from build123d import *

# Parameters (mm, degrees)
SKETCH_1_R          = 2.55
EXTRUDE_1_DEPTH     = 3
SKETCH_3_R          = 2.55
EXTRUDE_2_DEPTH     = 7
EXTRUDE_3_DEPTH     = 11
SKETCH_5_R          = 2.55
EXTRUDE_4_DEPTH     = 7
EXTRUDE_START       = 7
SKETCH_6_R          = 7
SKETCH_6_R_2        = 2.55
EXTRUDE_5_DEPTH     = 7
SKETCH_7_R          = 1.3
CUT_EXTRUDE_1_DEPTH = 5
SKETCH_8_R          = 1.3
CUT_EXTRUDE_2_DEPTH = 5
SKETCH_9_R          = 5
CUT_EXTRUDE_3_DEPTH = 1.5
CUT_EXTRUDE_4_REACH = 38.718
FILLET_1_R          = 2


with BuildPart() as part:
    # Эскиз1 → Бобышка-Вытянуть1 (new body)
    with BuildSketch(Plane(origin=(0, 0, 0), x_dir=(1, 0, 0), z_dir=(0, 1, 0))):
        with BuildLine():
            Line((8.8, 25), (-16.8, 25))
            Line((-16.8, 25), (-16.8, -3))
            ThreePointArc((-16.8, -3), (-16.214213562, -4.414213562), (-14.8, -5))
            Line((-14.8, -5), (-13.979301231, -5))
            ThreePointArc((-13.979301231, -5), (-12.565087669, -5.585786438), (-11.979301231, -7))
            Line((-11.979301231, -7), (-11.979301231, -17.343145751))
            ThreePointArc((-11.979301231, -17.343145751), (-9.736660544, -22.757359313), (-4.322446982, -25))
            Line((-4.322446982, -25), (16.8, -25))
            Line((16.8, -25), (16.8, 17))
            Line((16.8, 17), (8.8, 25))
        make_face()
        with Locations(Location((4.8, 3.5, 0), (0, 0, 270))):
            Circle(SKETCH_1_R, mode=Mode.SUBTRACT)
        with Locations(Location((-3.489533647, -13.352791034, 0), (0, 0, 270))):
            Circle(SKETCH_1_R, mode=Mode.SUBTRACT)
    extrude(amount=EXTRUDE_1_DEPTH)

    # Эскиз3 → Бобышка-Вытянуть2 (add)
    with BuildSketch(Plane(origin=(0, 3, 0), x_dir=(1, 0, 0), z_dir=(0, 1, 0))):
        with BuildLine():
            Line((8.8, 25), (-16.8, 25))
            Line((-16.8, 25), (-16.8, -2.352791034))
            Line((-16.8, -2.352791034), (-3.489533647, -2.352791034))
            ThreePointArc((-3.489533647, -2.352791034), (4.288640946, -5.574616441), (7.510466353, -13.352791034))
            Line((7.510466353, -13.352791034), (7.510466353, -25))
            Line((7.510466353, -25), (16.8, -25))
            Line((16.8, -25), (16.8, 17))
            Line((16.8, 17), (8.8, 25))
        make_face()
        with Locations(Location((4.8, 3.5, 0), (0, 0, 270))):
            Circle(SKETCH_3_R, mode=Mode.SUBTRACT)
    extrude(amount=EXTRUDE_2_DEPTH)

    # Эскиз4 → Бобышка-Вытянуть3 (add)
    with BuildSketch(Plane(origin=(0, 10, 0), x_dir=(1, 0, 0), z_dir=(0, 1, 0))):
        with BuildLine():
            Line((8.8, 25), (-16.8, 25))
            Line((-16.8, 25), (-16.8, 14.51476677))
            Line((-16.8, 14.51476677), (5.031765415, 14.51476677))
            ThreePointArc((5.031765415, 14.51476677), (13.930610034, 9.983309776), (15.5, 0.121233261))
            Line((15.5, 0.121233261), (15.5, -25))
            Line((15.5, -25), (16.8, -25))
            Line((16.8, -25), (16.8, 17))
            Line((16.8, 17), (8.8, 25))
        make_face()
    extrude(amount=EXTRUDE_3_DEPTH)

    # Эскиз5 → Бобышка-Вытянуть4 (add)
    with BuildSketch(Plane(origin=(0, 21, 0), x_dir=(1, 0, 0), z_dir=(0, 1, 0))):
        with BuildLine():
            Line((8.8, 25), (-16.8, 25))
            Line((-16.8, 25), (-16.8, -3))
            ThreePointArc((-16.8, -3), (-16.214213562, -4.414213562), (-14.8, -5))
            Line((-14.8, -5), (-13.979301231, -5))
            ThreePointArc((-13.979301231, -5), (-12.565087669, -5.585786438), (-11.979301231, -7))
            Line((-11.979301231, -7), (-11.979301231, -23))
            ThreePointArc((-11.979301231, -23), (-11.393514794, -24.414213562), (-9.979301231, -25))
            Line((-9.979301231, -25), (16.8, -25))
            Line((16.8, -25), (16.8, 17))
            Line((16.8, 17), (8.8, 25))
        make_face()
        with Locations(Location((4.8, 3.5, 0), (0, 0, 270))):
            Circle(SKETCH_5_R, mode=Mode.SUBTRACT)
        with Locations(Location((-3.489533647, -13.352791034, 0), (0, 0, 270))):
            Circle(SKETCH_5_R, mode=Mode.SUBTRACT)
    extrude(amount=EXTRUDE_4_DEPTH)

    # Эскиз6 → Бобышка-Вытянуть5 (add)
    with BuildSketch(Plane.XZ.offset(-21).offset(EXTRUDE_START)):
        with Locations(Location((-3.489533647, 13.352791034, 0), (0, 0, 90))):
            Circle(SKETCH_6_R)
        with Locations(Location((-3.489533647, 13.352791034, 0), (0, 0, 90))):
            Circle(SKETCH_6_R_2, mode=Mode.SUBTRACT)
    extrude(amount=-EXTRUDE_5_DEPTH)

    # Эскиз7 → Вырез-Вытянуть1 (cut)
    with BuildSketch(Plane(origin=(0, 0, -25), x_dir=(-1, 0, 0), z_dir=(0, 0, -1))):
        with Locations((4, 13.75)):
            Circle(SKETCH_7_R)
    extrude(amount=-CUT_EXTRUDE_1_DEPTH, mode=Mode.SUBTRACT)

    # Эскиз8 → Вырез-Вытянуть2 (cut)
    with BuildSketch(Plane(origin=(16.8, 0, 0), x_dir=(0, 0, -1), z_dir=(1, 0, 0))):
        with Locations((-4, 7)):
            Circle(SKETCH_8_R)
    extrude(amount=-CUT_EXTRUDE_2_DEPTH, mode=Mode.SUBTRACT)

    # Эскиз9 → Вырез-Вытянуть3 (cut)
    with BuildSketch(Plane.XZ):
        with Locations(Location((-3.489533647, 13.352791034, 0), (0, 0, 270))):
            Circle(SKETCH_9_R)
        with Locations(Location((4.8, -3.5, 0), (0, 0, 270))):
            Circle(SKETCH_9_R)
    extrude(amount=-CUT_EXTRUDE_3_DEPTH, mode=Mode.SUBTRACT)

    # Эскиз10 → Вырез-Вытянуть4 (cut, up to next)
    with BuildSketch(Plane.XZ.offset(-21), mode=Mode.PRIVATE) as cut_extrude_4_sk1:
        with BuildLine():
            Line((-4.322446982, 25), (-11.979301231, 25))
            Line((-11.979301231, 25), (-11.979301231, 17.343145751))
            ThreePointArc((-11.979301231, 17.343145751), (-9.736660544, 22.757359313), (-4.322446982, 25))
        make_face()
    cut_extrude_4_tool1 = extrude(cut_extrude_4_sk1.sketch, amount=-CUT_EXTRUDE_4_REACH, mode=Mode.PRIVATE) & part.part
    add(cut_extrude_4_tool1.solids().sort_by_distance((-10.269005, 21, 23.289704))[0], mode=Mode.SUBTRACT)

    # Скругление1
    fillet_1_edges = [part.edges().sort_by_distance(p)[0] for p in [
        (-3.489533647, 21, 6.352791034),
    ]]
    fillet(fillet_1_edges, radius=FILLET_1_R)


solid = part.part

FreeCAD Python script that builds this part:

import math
import FreeCAD as App
import Part
import Sketcher

V = App.Vector
Q = App.Units.Quantity


def edges_at(feature, points):
    """Names of the edges that pass closest to the given points."""
    edges = feature.Shape.Edges
    near = lambda p: min(range(len(edges)), key=lambda i: edges[i].distToShape(Part.Vertex(*p))[0])
    return sorted({f"Edge{near(p) + 1}" for p in points})

doc = App.newDocument("Part")
body = doc.addObject("PartDesign::Body", "Body")

# Sketch on XZ plane
sketch1 = doc.addObject("Sketcher::SketchObject", "Sketch")
body.addObject(sketch1)
sketch1.AttachmentSupport = (doc.XZ_Plane, [""])
sketch1.MapMode = "FlatFace"
sketch1.addGeometry(Part.LineSegment(V(8.8, -25, 0), V(-16.8, -25, 0)), False)
sketch1.addGeometry(Part.LineSegment(V(-16.8, -25, 0), V(-16.8, 3, 0)), False)
sketch1.addGeometry(Part.ArcOfCircle(Part.Circle(V(-14.8, 3, 0), V(0, 0, 1), 2), math.radians(90), math.radians(180)), False)
sketch1.addGeometry(Part.LineSegment(V(-14.8, 5, 0), V(-14, 5, 0)), False)
sketch1.addGeometry(Part.ArcOfCircle(Part.Circle(V(-14, 7, 0), V(0, 0, 1), 2), math.radians(-90), math.radians(0)), False)
sketch1.addGeometry(Part.LineSegment(V(-12, 7, 0), V(-12, 17.3, 0)), False)
sketch1.addGeometry(Part.ArcOfCircle(Part.Circle(V(-4.3, 17.3, 0), V(0, 0, 1), 7.7), math.radians(90), math.radians(180)), False)
sketch1.addGeometry(Part.LineSegment(V(-4.3, 25, 0), V(16.8, 25, 0)), False)
sketch1.addGeometry(Part.LineSegment(V(16.8, 25, 0), V(16.8, -17, 0)), False)
sketch1.addGeometry(Part.LineSegment(V(16.8, -17, 0), V(8.8, -25, 0)), False)
sketch1.addGeometry(Part.Circle(V(-3.5, 13.4, 0), V(0, 0, 1), 2.5), False)
sketch1.addGeometry(Part.Circle(V(4.8, -3.5, 0), V(0, 0, 1), 2.5), False)
sketch1.addConstraint(Sketcher.Constraint("Coincident", 0, 2, 1, 1))
sketch1.addConstraint(Sketcher.Constraint("Tangent", 1, 2, 2, 2))
sketch1.addConstraint(Sketcher.Constraint("Tangent", 2, 1, 3, 1))
sketch1.addConstraint(Sketcher.Constraint("Tangent", 3, 2, 4, 1))
sketch1.addConstraint(Sketcher.Constraint("Tangent", 4, 2, 5, 1))
sketch1.addConstraint(Sketcher.Constraint("Tangent", 5, 2, 6, 2))
sketch1.addConstraint(Sketcher.Constraint("Tangent", 6, 1, 7, 1))
sketch1.addConstraint(Sketcher.Constraint("Coincident", 7, 2, 8, 1))
sketch1.addConstraint(Sketcher.Constraint("Coincident", 8, 2, 9, 1))
sketch1.addConstraint(Sketcher.Constraint("Coincident", 9, 2, 0, 1))
sketch1.addConstraint(Sketcher.Constraint("Horizontal", 0))
sketch1.addConstraint(Sketcher.Constraint("Vertical", 1))
sketch1.addConstraint(Sketcher.Constraint("Horizontal", 3))
sketch1.addConstraint(Sketcher.Constraint("Vertical", 5))
sketch1.addConstraint(Sketcher.Constraint("Horizontal", 7))
sketch1.addConstraint(Sketcher.Constraint("Vertical", 8))
sketch1.addConstraint(Sketcher.Constraint("Equal", 2, 4))
sketch1.addConstraint(Sketcher.Constraint("Equal", 10, 11))
sketch1.addConstraint(Sketcher.Constraint("Symmetric", 0, 2, 7, 2, -1, 1))
sketch1.addConstraint(Sketcher.Constraint("Radius", 2, Q("2 mm")))
sketch1.addConstraint(Sketcher.Constraint("Diameter", 10, Q("5.1 mm")))
sketch1.addConstraint(Sketcher.Constraint("DistanceY", 1, 1, 1, 2, Q("28 mm")))
sketch1.addConstraint(Sketcher.Constraint("DistanceY", 8, 2, 8, 1, Q("42 mm")))
sketch1.addConstraint(Sketcher.Constraint("Angle", 9, Q("-135 deg")))
sketch1.addConstraint(Sketcher.Constraint("DistanceX", 0, 2, 0, 1, Q("25.6 mm")))
sketch1.addConstraint(Sketcher.Constraint("DistanceY", -1, 1, 2, 3, Q("3 mm")))
sketch1.addConstraint(Sketcher.Constraint("DistanceX", 11, 3, 7, 2, Q("12 mm")))
sketch1.addConstraint(Sketcher.Constraint("DistanceY", 11, 3, -1, 1, Q("3.5 mm")))
sketch1.addConstraint(Sketcher.Constraint("DistanceX", 3, 1, 3, 2, Q("0.820699 mm")))
sketch1.addConstraint(Sketcher.Constraint("Radius", 6, Q("7.656854 mm")))
sketch1.addConstraint(Sketcher.Constraint("DistanceY", -1, 1, 10, 3, Q("13.352791 mm")))
sketch1.addConstraint(Sketcher.Constraint("DistanceX", 10, 3, -1, 1, Q("3.489534 mm")))
pad1 = doc.addObject("PartDesign::Pad", "Pad")
body.addObject(pad1)
pad1.Profile = sketch1
pad1.Length = 3
pad1.Reversed = True

# Sketch on XZ plane
sketch2 = doc.addObject("Sketcher::SketchObject", "Sketch001")
body.addObject(sketch2)
sketch2.AttachmentSupport = (doc.XZ_Plane, [""])
sketch2.MapMode = "FlatFace"
sketch2.AttachmentOffset = App.Placement(V(0, 0, -3), App.Rotation())
sketch2.addGeometry(Part.LineSegment(V(8.8, -25, 0), V(-16.8, -25, 0)), False)
sketch2.addGeometry(Part.LineSegment(V(-16.8, -25, 0), V(-16.8, 2.4, 0)), False)
sketch2.addGeometry(Part.LineSegment(V(-16.8, 2.4, 0), V(-3.5, 2.4, 0)), False)
sketch2.addGeometry(Part.ArcOfCircle(Part.Circle(V(-3.5, 13.4, 0), V(0, 0, 1), 11), math.radians(-90), math.radians(0)), False)
sketch2.addGeometry(Part.LineSegment(V(7.5, 13.4, 0), V(7.5, 25, 0)), False)
sketch2.addGeometry(Part.LineSegment(V(7.5, 25, 0), V(16.8, 25, 0)), False)
sketch2.addGeometry(Part.LineSegment(V(16.8, 25, 0), V(16.8, -17, 0)), False)
sketch2.addGeometry(Part.LineSegment(V(16.8, -17, 0), V(8.8, -25, 0)), False)
sketch2.addGeometry(Part.Circle(V(4.8, -3.5, 0), V(0, 0, 1), 2.5), False)
sketch2.addConstraint(Sketcher.Constraint("Coincident", 0, 2, 1, 1))
sketch2.addConstraint(Sketcher.Constraint("Coincident", 1, 2, 2, 1))
sketch2.addConstraint(Sketcher.Constraint("Tangent", 2, 2, 3, 1))
sketch2.addConstraint(Sketcher.Constraint("Tangent", 3, 2, 4, 1))
sketch2.addConstraint(Sketcher.Constraint("Coincident", 4, 2, 5, 1))
sketch2.addConstraint(Sketcher.Constraint("Coincident", 5, 2, 6, 1))
sketch2.addConstraint(Sketcher.Constraint("Coincident", 6, 2, 7, 1))
sketch2.addConstraint(Sketcher.Constraint("Coincident", 7, 2, 0, 1))
sketch2.addConstraint(Sketcher.Constraint("Horizontal", 0))
sketch2.addConstraint(Sketcher.Constraint("Vertical", 1))
sketch2.addConstraint(Sketcher.Constraint("Horizontal", 2))
sketch2.addConstraint(Sketcher.Constraint("Vertical", 4))
sketch2.addConstraint(Sketcher.Constraint("Horizontal", 5))
sketch2.addConstraint(Sketcher.Constraint("Vertical", 6))
sketch2.addConstraint(Sketcher.Constraint("Symmetric", 0, 2, 5, 2, -1, 1))
sketch2.addConstraint(Sketcher.Constraint("Radius", 3, Q("11 mm")))
sketch2.addConstraint(Sketcher.Constraint("Diameter", 8, Q("5.1 mm")))
sketch2.addConstraint(Sketcher.Constraint("DistanceY", 6, 2, 6, 1, Q("42 mm")))
sketch2.addConstraint(Sketcher.Constraint("Angle", 7, Q("-135 deg")))
sketch2.addConstraint(Sketcher.Constraint("DistanceX", 0, 2, 0, 1, Q("25.6 mm")))
sketch2.addConstraint(Sketcher.Constraint("DistanceY", 0, 2, -1, 1, Q("25 mm")))
sketch2.addConstraint(Sketcher.Constraint("DistanceX", 8, 3, 5, 2, Q("12 mm")))
sketch2.addConstraint(Sketcher.Constraint("DistanceY", 8, 3, -1, 1, Q("3.5 mm")))
sketch2.addConstraint(Sketcher.Constraint("DistanceY", 1, 1, 1, 2, Q("27.352791 mm")))
sketch2.addConstraint(Sketcher.Constraint("DistanceX", 2, 1, 2, 2, Q("13.310466 mm")))
pad2 = doc.addObject("PartDesign::Pad", "Pad001")
body.addObject(pad2)
pad2.Profile = sketch2
pad2.Length = 7
pad2.Reversed = True

# Sketch on XZ plane
sketch3 = doc.addObject("Sketcher::SketchObject", "Sketch002")
body.addObject(sketch3)
sketch3.AttachmentSupport = (doc.XZ_Plane, [""])
sketch3.MapMode = "FlatFace"
sketch3.AttachmentOffset = App.Placement(V(0, 0, -10), App.Rotation())
sketch3.addGeometry(Part.LineSegment(V(8.8, -25, 0), V(-16.8, -25, 0)), False)
sketch3.addGeometry(Part.LineSegment(V(-16.8, -25, 0), V(-16.8, -14.5, 0)), False)
sketch3.addGeometry(Part.LineSegment(V(-16.8, -14.5, 0), V(5, -14.5, 0)), False)
sketch3.addGeometry(Part.ArcOfCircle(Part.Circle(V(5, -3.5, 0), V(0, 0, 1), 11), math.radians(-90), math.radians(18)), False)
sketch3.addGeometry(Part.LineSegment(V(15.5, -0.1, 0), V(15.5, 25, 0)), False)
sketch3.addGeometry(Part.LineSegment(V(15.5, 25, 0), V(16.8, 25, 0)), False)
sketch3.addGeometry(Part.LineSegment(V(16.8, 25, 0), V(16.8, -17, 0)), False)
sketch3.addGeometry(Part.LineSegment(V(16.8, -17, 0), V(8.8, -25, 0)), False)
sketch3.addConstraint(Sketcher.Constraint("Coincident", 0, 2, 1, 1))
sketch3.addConstraint(Sketcher.Constraint("Coincident", 1, 2, 2, 1))
sketch3.addConstraint(Sketcher.Constraint("Tangent", 2, 2, 3, 1))
sketch3.addConstraint(Sketcher.Constraint("Coincident", 3, 2, 4, 1))
sketch3.addConstraint(Sketcher.Constraint("Coincident", 4, 2, 5, 1))
sketch3.addConstraint(Sketcher.Constraint("Coincident", 5, 2, 6, 1))
sketch3.addConstraint(Sketcher.Constraint("Coincident", 6, 2, 7, 1))
sketch3.addConstraint(Sketcher.Constraint("Coincident", 7, 2, 0, 1))
sketch3.addConstraint(Sketcher.Constraint("Horizontal", 0))
sketch3.addConstraint(Sketcher.Constraint("Vertical", 1))
sketch3.addConstraint(Sketcher.Constraint("Horizontal", 2))
sketch3.addConstraint(Sketcher.Constraint("Vertical", 4))
sketch3.addConstraint(Sketcher.Constraint("Horizontal", 5))
sketch3.addConstraint(Sketcher.Constraint("Vertical", 6))
sketch3.addConstraint(Sketcher.Constraint("Symmetric", 0, 2, 5, 2, -1, 1))
sketch3.addConstraint(Sketcher.Constraint("DistanceY", 6, 2, 6, 1, Q("42 mm")))
sketch3.addConstraint(Sketcher.Constraint("Angle", 7, Q("-135 deg")))
sketch3.addConstraint(Sketcher.Constraint("DistanceX", 0, 2, 0, 1, Q("25.6 mm")))
sketch3.addConstraint(Sketcher.Constraint("DistanceX", 5, 1, 5, 2, Q("1.3 mm")))
sketch3.addConstraint(Sketcher.Constraint("DistanceY", 0, 2, -1, 1, Q("25 mm")))
sketch3.addConstraint(Sketcher.Constraint("Radius", 3, Q("11.003474 mm")))
sketch3.addConstraint(Sketcher.Constraint("DistanceX", 2, 1, 2, 2, Q("21.831765 mm")))
sketch3.addConstraint(Sketcher.Constraint("DistanceY", 1, 1, 1, 2, Q("10.485233 mm")))
pad3 = doc.addObject("PartDesign::Pad", "Pad002")
body.addObject(pad3)
pad3.Profile = sketch3
pad3.Length = 11
pad3.Reversed = True

# Sketch on XZ plane
sketch4 = doc.addObject("Sketcher::SketchObject", "Sketch003")
body.addObject(sketch4)
sketch4.AttachmentSupport = (doc.XZ_Plane, [""])
sketch4.MapMode = "FlatFace"
sketch4.AttachmentOffset = App.Placement(V(0, 0, -21), App.Rotation())
sketch4.addGeometry(Part.LineSegment(V(8.8, -25, 0), V(-16.8, -25, 0)), False)
sketch4.addGeometry(Part.LineSegment(V(-16.8, -25, 0), V(-16.8, 3, 0)), False)
sketch4.addGeometry(Part.ArcOfCircle(Part.Circle(V(-14.8, 3, 0), V(0, 0, 1), 2), math.radians(90), math.radians(180)), False)
sketch4.addGeometry(Part.LineSegment(V(-14.8, 5, 0), V(-14, 5, 0)), False)
sketch4.addGeometry(Part.ArcOfCircle(Part.Circle(V(-14, 7, 0), V(0, 0, 1), 2), math.radians(-90), math.radians(0)), False)
sketch4.addGeometry(Part.LineSegment(V(-12, 7, 0), V(-12, 23, 0)), False)
sketch4.addGeometry(Part.ArcOfCircle(Part.Circle(V(-10, 23, 0), V(0, 0, 1), 2), math.radians(90), math.radians(180)), False)
sketch4.addGeometry(Part.LineSegment(V(-10, 25, 0), V(16.8, 25, 0)), False)
sketch4.addGeometry(Part.LineSegment(V(16.8, 25, 0), V(16.8, -17, 0)), False)
sketch4.addGeometry(Part.LineSegment(V(16.8, -17, 0), V(8.8, -25, 0)), False)
sketch4.addGeometry(Part.Circle(V(-3.5, 13.4, 0), V(0, 0, 1), 2.5), False)
sketch4.addGeometry(Part.Circle(V(4.8, -3.5, 0), V(0, 0, 1), 2.5), False)
sketch4.addConstraint(Sketcher.Constraint("Coincident", 0, 2, 1, 1))
sketch4.addConstraint(Sketcher.Constraint("Tangent", 1, 2, 2, 2))
sketch4.addConstraint(Sketcher.Constraint("Tangent", 2, 1, 3, 1))
sketch4.addConstraint(Sketcher.Constraint("Tangent", 3, 2, 4, 1))
sketch4.addConstraint(Sketcher.Constraint("Tangent", 4, 2, 5, 1))
sketch4.addConstraint(Sketcher.Constraint("Tangent", 5, 2, 6, 2))
sketch4.addConstraint(Sketcher.Constraint("Tangent", 6, 1, 7, 1))
sketch4.addConstraint(Sketcher.Constraint("Coincident", 7, 2, 8, 1))
sketch4.addConstraint(Sketcher.Constraint("Coincident", 8, 2, 9, 1))
sketch4.addConstraint(Sketcher.Constraint("Coincident", 9, 2, 0, 1))
sketch4.addConstraint(Sketcher.Constraint("Horizontal", 0))
sketch4.addConstraint(Sketcher.Constraint("Vertical", 1))
sketch4.addConstraint(Sketcher.Constraint("Horizontal", 3))
sketch4.addConstraint(Sketcher.Constraint("Vertical", 5))
sketch4.addConstraint(Sketcher.Constraint("Horizontal", 7))
sketch4.addConstraint(Sketcher.Constraint("Vertical", 8))
sketch4.addConstraint(Sketcher.Constraint("Equal", 2, 4))
sketch4.addConstraint(Sketcher.Constraint("Equal", 4, 6))
sketch4.addConstraint(Sketcher.Constraint("Equal", 10, 11))
sketch4.addConstraint(Sketcher.Constraint("Symmetric", 0, 2, 7, 2, -1, 1))
sketch4.addConstraint(Sketcher.Constraint("Radius", 2, Q("2 mm")))
sketch4.addConstraint(Sketcher.Constraint("Diameter", 10, Q("5.1 mm")))
sketch4.addConstraint(Sketcher.Constraint("DistanceY", 1, 1, 1, 2, Q("28 mm")))
sketch4.addConstraint(Sketcher.Constraint("DistanceY", 5, 1, 5, 2, Q("16 mm")))
sketch4.addConstraint(Sketcher.Constraint("DistanceY", 8, 2, 8, 1, Q("42 mm")))
sketch4.addConstraint(Sketcher.Constraint("Angle", 9, Q("-135 deg")))
sketch4.addConstraint(Sketcher.Constraint("DistanceX", 0, 2, 0, 1, Q("25.6 mm")))
sketch4.addConstraint(Sketcher.Constraint("DistanceX", 11, 3, 7, 2, Q("12 mm")))
sketch4.addConstraint(Sketcher.Constraint("DistanceY", 11, 3, -1, 1, Q("3.5 mm")))
sketch4.addConstraint(Sketcher.Constraint("DistanceX", 3, 1, 3, 2, Q("0.820699 mm")))
sketch4.addConstraint(Sketcher.Constraint("DistanceY", -1, 1, 10, 3, Q("13.352791 mm")))
sketch4.addConstraint(Sketcher.Constraint("DistanceX", 10, 3, -1, 1, Q("3.489534 mm")))
pad4 = doc.addObject("PartDesign::Pad", "Pad003")
body.addObject(pad4)
pad4.Profile = sketch4
pad4.Length = 7
pad4.Reversed = True

# Sketch on XZ plane
sketch5 = doc.addObject("Sketcher::SketchObject", "Sketch004")
body.addObject(sketch5)
sketch5.AttachmentSupport = (doc.XZ_Plane, [""])
sketch5.MapMode = "FlatFace"
sketch5.AttachmentOffset = App.Placement(V(0, 0, -14), App.Rotation())
sketch5.addGeometry(Part.Circle(V(-3.5, 13.4, 0), V(0, 0, 1), 7), False)
sketch5.addGeometry(Part.Circle(V(-3.5, 13.4, 0), V(0, 0, 1), 2.5), False)
sketch5.addConstraint(Sketcher.Constraint("Coincident", 1, 3, 0, 3))
sketch5.addConstraint(Sketcher.Constraint("Diameter", 0, Q("14 mm")))
sketch5.addConstraint(Sketcher.Constraint("Diameter", 1, Q("5.1 mm")))
sketch5.addConstraint(Sketcher.Constraint("DistanceY", -1, 1, 0, 3, Q("13.352791 mm")))
sketch5.addConstraint(Sketcher.Constraint("DistanceX", 0, 3, -1, 1, Q("3.489534 mm")))
pad5 = doc.addObject("PartDesign::Pad", "Pad004")
body.addObject(pad5)
pad5.Profile = sketch5
pad5.Length = 7
pad5.Reversed = True

# Sketch on XY plane
sketch6 = doc.addObject("Sketcher::SketchObject", "Sketch005")
body.addObject(sketch6)
sketch6.AttachmentSupport = (doc.XY_Plane, [""])
sketch6.MapMode = "FlatFace"
sketch6.AttachmentOffset = App.Placement(V(0, 0, -25), App.Rotation())
sketch6.addGeometry(Part.Circle(V(-4, 13.8, 0), V(0, 0, 1), 1.3), False)
sketch6.addConstraint(Sketcher.Constraint("Diameter", 0, Q("2.6 mm")))
sketch6.addConstraint(Sketcher.Constraint("DistanceX", 0, 3, -1, 1, Q("4 mm")))
sketch6.addConstraint(Sketcher.Constraint("DistanceY", -1, 1, 0, 3, Q("13.75 mm")))
pocket1 = doc.addObject("PartDesign::Pocket", "Pocket")
body.addObject(pocket1)
pocket1.Profile = sketch6
pocket1.Length = 5
pocket1.Reversed = True

# Sketch on YZ plane
sketch7 = doc.addObject("Sketcher::SketchObject", "Sketch006")
body.addObject(sketch7)
sketch7.AttachmentSupport = (doc.YZ_Plane, [""])
sketch7.MapMode = "FlatFace"
sketch7.AttachmentOffset = App.Placement(V(0, 0, 16.8), App.Rotation())
sketch7.addGeometry(Part.Circle(V(7, 4, 0), V(0, 0, 1), 1.3), False)
sketch7.addConstraint(Sketcher.Constraint("Diameter", 0, Q("2.6 mm")))
sketch7.addConstraint(Sketcher.Constraint("DistanceX", -1, 1, 0, 3, Q("7 mm")))
sketch7.addConstraint(Sketcher.Constraint("DistanceY", -1, 1, 0, 3, Q("4 mm")))
pocket2 = doc.addObject("PartDesign::Pocket", "Pocket001")
body.addObject(pocket2)
pocket2.Profile = sketch7
pocket2.Length = 5

# Sketch on XZ plane
sketch8 = doc.addObject("Sketcher::SketchObject", "Sketch007")
body.addObject(sketch8)
sketch8.AttachmentSupport = (doc.XZ_Plane, [""])
sketch8.MapMode = "FlatFace"
sketch8.addGeometry(Part.Circle(V(-3, 13, 0), V(0, 0, 1), 5), False)
sketch8.addGeometry(Part.Circle(V(5, -4, 0), V(0, 0, 1), 5), False)
sketch8.addConstraint(Sketcher.Constraint("Equal", 0, 1))
sketch8.addConstraint(Sketcher.Constraint("Diameter", 0, Q("10 mm")))
sketch8.addConstraint(Sketcher.Constraint("DistanceX", -1, 1, 1, 3, Q("4.8 mm")))
sketch8.addConstraint(Sketcher.Constraint("DistanceY", 1, 3, -1, 1, Q("3.5 mm")))
sketch8.addConstraint(Sketcher.Constraint("DistanceY", -1, 1, 0, 3, Q("13.352791 mm")))
sketch8.addConstraint(Sketcher.Constraint("DistanceX", 0, 3, -1, 1, Q("3.489534 mm")))
pocket3 = doc.addObject("PartDesign::Pocket", "Pocket002")
body.addObject(pocket3)
pocket3.Profile = sketch8
pocket3.Length = 1.5

# Sketch on XZ plane
sketch9 = doc.addObject("Sketcher::SketchObject", "Sketch008")
body.addObject(sketch9)
sketch9.AttachmentSupport = (doc.XZ_Plane, [""])
sketch9.MapMode = "FlatFace"
sketch9.AttachmentOffset = App.Placement(V(0, 0, -21), App.Rotation())
sketch9.addGeometry(Part.LineSegment(V(-4, 25, 0), V(-12, 25, 0)), False)
sketch9.addGeometry(Part.LineSegment(V(-12, 25, 0), V(-12, 17, 0)), False)
sketch9.addGeometry(Part.ArcOfCircle(Part.Circle(V(-4, 17, 0), V(0, 0, 1), 8), math.radians(90), math.radians(180)), False)
sketch9.addConstraint(Sketcher.Constraint("Coincident", 0, 2, 1, 1))
sketch9.addConstraint(Sketcher.Constraint("Tangent", 1, 2, 2, 2))
sketch9.addConstraint(Sketcher.Constraint("Tangent", 2, 1, 0, 1))
sketch9.addConstraint(Sketcher.Constraint("Horizontal", 0))
sketch9.addConstraint(Sketcher.Constraint("Vertical", 1))
sketch9.addConstraint(Sketcher.Constraint("DistanceY", -1, 1, 0, 2, Q("25 mm")))
sketch9.addConstraint(Sketcher.Constraint("Radius", 2, Q("7.656854 mm")))
sketch9.addConstraint(Sketcher.Constraint("DistanceX", 0, 2, -1, 1, Q("11.979301 mm")))
pocket4 = doc.addObject("PartDesign::Pocket", "Pocket003")
body.addObject(pocket4)
pocket4.Profile = sketch9
pocket4.Type = "UpToFirst"
doc.recompute()

fillet = doc.addObject("PartDesign::Fillet", "Fillet")
body.addObject(fillet)
fillet.Base = (pocket4, edges_at(pocket4, [(-3.49, 21, 6.353)]))
fillet.Radius = 2

doc.recompute()
